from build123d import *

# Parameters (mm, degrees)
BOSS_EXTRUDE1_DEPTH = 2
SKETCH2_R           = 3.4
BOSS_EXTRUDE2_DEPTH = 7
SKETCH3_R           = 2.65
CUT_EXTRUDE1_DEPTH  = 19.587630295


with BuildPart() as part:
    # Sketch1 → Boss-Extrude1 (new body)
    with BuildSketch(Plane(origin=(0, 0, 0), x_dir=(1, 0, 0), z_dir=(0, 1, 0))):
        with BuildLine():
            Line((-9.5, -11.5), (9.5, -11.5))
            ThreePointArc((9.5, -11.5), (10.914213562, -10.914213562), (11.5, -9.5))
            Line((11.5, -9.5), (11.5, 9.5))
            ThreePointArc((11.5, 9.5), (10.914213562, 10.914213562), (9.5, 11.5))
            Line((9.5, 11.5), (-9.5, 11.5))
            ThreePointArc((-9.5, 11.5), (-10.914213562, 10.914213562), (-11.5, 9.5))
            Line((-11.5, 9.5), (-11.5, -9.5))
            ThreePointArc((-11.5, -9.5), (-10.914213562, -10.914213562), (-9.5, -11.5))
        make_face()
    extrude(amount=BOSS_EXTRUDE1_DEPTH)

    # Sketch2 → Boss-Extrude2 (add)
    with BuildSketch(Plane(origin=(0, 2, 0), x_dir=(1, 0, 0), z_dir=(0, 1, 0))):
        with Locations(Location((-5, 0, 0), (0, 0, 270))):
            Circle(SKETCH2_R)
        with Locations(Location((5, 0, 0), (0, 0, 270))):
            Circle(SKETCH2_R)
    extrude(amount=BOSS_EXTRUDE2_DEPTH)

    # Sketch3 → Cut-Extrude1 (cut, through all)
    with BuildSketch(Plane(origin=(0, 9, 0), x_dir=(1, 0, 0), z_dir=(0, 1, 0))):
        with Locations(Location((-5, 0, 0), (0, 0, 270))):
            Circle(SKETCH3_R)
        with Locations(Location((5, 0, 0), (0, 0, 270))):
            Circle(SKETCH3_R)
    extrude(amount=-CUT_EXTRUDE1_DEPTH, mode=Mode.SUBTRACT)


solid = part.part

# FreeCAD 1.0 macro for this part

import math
import FreeCAD as App
import Part
import Sketcher

V = App.Vector
Q = App.Units.Quantity

doc = App.newDocument("Part")
body = doc.addObject("PartDesign::Body", "Body")

sketch1 = body.newObject("Sketcher::SketchObject", "Sketch")
sketch1.AttachmentSupport = (doc.getObject("XZ_Plane"), [""])
sketch1.MapMode = "FlatFace"
sketch1.addGeometry([
    Part.LineSegment(V(-9.5, 11.5, 0), V(9.5, 11.5, 0)),
    Part.ArcOfCircle(Part.Circle(V(9.5, 9.5, 0), V(0, 0, 1), 2), math.radians(0), math.radians(90)),
    Part.LineSegment(V(11.5, 9.5, 0), V(11.5, -9.5, 0)),
    Part.ArcOfCircle(Part.Circle(V(9.5, -9.5, 0), V(0, 0, 1), 2), math.radians(-90), math.radians(0)),
    Part.LineSegment(V(9.5, -11.5, 0), V(-9.5, -11.5, 0)),
    Part.ArcOfCircle(Part.Circle(V(-9.5, -9.5, 0), V(0, 0, 1), 2), math.radians(-180), math.radians(-90)),
    Part.LineSegment(V(-11.5, -9.5, 0), V(-11.5, 9.5, 0)),
    Part.ArcOfCircle(Part.Circle(V(-9.5, 9.5, 0), V(0, 0, 1), 2), math.radians(90), math.radians(180)),
], False)
sketch1.addConstraint([
    Sketcher.Constraint("Tangent", 0, 2, 1, 2),
    Sketcher.Constraint("Tangent", 1, 1, 2, 1),
    Sketcher.Constraint("Tangent", 2, 2, 3, 2),
    Sketcher.Constraint("Tangent", 3, 1, 4, 1),
    Sketcher.Constraint("Tangent", 4, 2, 5, 2),
    Sketcher.Constraint("Tangent", 5, 1, 6, 1),
    Sketcher.Constraint("Tangent", 6, 2, 7, 2),
    Sketcher.Constraint("Tangent", 7, 1, 0, 1),
    Sketcher.Constraint("Horizontal", 0),
    Sketcher.Constraint("Vertical", 2),
    Sketcher.Constraint("Horizontal", 4),
    Sketcher.Constraint("Vertical", 6),
    Sketcher.Constraint("Equal", 1, 3),
    Sketcher.Constraint("Equal", 3, 5),
    Sketcher.Constraint("Equal", 5, 7),
    Sketcher.Constraint("Symmetric", 1, 3, 5, 3, -1, 1),
    Sketcher.Constraint("Equal", 4, 2),
    Sketcher.Constraint("Radius", 1, Q("2 mm")),
    Sketcher.Constraint("DistanceX", 0, 1, 0, 2, Q("19 mm")),
])
pad1 = body.newObject("PartDesign::Pad", "Pad")
pad1.Profile = sketch1
pad1.Length = 2
pad1.Reversed = True

sketch2 = body.newObject("Sketcher::SketchObject", "Sketch001")
sketch2.AttachmentSupport = (doc.getObject("XZ_Plane"), [""])
sketch2.MapMode = "FlatFace"
sketch2.AttachmentOffset = App.Placement(V(0, 0, -2), App.Rotation())
sketch2.addGeometry([
    Part.Circle(V(-5, 0, 0), V(0, 0, 1), 3.4),
    Part.Circle(V(5, 0, 0), V(0, 0, 1), 3.4),
], False)
sketch2.addConstraint([
    Sketcher.Constraint("Equal", 0, 1),
    Sketcher.Constraint("Symmetric", 0, 3, 1, 3, -1, 1),
    Sketcher.Constraint("PointOnObject", 0, 3, -1),
    Sketcher.Constraint("Diameter", 0, Q("6.8 mm")),
    Sketcher.Constraint("DistanceX", 0, 3, -1, 1, Q("5 mm")),
])
pad2 = body.newObject("PartDesign::Pad", "Pad001")
pad2.Profile = sketch2
pad2.Length = 7
pad2.Reversed = True

sketch3 = body.newObject("Sketcher::SketchObject", "Sketch002")
sketch3.AttachmentSupport = (doc.getObject("XZ_Plane"), [""])
sketch3.MapMode = "FlatFace"
sketch3.AttachmentOffset = App.Placement(V(0, 0, -9), App.Rotation())
sketch3.addGeometry([
    Part.Circle(V(-5, 0, 0), V(0, 0, 1), 2.6),
    Part.Circle(V(5, 0, 0), V(0, 0, 1), 2.6),
], False)
sketch3.addConstraint([
    Sketcher.Constraint("Equal", 0, 1),
    Sketcher.Constraint("Symmetric", 0, 3, 1, 3, -1, 1),
    Sketcher.Constraint("PointOnObject", 0, 3, -1),
    Sketcher.Constraint("Diameter", 0, Q("5.3 mm")),
    Sketcher.Constraint("DistanceX", 0, 3, -1, 1, Q("5 mm")),
])
pocket1 = body.newObject("PartDesign::Pocket", "Pocket")
pocket1.Profile = sketch3
pocket1.Type = "ThroughAll"
pocket1.Reversed = True

doc.recompute()
